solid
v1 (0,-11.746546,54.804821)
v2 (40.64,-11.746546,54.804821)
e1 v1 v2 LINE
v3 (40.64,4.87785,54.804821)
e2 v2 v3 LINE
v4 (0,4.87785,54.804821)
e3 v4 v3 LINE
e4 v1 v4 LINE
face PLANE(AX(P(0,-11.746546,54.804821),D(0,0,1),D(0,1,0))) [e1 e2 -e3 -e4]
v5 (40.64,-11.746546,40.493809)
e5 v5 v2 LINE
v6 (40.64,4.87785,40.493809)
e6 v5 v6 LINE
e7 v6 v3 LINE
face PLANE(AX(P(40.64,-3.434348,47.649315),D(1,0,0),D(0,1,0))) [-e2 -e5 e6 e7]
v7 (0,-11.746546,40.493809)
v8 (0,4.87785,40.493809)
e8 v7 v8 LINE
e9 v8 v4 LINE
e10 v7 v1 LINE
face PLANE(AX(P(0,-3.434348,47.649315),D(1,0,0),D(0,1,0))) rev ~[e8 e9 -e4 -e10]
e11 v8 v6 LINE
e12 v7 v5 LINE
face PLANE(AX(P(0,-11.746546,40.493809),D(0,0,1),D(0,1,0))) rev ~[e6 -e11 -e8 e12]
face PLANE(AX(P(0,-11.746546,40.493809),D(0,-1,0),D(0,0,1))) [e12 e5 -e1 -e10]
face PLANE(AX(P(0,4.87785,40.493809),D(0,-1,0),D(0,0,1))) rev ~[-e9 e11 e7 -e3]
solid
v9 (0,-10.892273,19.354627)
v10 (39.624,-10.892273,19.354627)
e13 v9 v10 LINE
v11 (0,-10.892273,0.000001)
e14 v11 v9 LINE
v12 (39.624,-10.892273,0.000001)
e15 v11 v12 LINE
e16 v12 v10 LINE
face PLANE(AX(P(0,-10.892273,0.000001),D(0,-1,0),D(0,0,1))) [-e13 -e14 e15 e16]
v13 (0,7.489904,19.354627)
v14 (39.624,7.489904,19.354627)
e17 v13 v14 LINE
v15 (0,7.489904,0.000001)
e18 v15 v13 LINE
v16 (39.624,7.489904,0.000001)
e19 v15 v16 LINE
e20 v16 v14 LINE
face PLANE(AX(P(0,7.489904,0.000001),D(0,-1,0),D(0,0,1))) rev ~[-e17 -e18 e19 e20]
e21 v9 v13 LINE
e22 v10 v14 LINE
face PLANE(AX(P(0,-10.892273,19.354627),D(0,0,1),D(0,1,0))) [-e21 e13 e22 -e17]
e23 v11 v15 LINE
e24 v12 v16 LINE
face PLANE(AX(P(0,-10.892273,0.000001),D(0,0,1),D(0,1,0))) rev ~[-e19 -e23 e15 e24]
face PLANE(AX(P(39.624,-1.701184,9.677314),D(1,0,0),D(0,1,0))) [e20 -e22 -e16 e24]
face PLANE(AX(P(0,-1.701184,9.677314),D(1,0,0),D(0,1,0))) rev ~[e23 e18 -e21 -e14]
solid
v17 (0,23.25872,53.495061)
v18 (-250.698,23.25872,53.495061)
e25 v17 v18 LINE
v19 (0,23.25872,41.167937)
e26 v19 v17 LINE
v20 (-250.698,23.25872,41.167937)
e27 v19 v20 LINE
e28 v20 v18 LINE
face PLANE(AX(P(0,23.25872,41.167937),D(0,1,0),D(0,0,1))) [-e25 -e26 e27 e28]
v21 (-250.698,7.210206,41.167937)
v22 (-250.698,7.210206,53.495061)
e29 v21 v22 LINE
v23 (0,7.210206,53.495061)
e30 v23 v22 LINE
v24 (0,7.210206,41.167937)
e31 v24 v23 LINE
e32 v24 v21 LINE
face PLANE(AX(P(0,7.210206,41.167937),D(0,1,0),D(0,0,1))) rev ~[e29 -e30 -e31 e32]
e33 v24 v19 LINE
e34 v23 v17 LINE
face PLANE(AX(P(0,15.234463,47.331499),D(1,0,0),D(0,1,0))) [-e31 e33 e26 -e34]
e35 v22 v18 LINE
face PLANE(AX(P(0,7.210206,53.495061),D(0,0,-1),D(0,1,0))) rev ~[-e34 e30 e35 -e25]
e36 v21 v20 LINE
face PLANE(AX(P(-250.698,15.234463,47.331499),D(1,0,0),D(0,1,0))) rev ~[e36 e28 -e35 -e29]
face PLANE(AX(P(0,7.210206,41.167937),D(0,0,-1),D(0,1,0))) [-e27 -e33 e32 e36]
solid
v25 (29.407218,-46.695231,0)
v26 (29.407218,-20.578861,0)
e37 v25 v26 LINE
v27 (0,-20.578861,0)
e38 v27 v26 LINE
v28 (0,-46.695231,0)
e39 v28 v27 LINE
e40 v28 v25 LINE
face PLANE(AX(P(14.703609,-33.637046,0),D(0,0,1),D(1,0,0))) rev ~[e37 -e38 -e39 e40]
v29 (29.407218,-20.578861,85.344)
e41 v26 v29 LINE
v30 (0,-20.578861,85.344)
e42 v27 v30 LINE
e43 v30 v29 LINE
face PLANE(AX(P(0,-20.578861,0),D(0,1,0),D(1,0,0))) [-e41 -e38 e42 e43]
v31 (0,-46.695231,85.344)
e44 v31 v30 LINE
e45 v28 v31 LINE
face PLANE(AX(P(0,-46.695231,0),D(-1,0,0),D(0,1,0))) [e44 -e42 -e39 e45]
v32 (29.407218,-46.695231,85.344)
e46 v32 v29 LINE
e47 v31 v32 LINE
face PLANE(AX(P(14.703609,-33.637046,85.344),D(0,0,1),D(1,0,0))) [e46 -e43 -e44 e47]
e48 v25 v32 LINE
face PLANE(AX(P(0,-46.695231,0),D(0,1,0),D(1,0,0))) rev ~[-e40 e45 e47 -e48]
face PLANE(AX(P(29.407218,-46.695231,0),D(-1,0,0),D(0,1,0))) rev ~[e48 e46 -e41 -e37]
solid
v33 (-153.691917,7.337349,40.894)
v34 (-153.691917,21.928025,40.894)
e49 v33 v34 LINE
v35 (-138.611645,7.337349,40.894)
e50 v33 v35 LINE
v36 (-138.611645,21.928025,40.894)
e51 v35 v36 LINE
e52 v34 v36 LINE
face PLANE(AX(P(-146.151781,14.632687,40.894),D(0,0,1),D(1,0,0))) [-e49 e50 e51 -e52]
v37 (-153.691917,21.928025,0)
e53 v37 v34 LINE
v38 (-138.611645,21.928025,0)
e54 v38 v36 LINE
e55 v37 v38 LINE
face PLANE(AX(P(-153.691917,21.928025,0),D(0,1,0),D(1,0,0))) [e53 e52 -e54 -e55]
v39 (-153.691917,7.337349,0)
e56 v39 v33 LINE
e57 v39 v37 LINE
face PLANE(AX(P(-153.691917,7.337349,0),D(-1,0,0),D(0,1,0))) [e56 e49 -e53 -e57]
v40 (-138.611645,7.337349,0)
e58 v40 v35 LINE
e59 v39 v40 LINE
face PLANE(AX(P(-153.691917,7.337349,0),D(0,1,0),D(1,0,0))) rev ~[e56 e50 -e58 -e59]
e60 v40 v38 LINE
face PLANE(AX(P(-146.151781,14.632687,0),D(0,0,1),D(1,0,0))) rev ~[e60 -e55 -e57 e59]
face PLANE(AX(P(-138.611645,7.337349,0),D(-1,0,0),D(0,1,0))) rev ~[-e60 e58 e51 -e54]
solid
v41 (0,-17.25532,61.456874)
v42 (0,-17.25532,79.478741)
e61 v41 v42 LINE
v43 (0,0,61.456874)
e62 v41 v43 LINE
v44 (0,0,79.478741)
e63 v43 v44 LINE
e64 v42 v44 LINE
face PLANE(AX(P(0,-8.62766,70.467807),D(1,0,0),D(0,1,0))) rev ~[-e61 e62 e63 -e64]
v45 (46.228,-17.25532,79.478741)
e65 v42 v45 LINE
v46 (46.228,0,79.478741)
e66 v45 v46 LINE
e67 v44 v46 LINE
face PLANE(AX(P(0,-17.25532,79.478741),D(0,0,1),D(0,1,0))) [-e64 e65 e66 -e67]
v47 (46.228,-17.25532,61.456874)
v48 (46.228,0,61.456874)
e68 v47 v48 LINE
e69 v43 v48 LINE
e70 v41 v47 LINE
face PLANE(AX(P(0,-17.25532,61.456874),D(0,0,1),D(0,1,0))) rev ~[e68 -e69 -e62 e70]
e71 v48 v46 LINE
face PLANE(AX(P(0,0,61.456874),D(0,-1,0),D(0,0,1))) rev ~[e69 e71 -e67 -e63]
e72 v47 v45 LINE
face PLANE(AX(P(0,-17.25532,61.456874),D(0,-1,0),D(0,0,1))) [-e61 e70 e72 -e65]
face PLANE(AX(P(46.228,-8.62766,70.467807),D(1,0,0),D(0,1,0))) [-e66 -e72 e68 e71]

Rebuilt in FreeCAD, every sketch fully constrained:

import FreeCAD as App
import Part
import Sketcher

V = App.Vector
Q = App.Units.Quantity


def add_polygon(sketch, points):
    """Adds a closed chain of lines whose ends are joined by coincident constraints."""
    first, n = sketch.GeometryCount, len(points)
    for a, b in zip(points, points[1:] + points[:1]):
        sketch.addGeometry(Part.LineSegment(App.Vector(*a, 0), App.Vector(*b, 0)), False)
    for i in range(n):
        sketch.addConstraint(Sketcher.Constraint("Coincident", first + i, 2, first + (i + 1) % n, 1))

doc = App.newDocument("Part")
params = doc.addObject("Spreadsheet::Sheet", "Params")
for row, (alias, value) in enumerate([
    ("pad1_length", "1.61 in"),
    ("pad2_length", "9.87 in"),
    ("pad3_length", "3.36 in"),
    ("pad4_length", "1.6 in"),
    ("pad5_length", "1.82 in"),
    ("pad6_length", "1.56 in"),
], start=1):
    params.set(f"A{row}", alias)
    params.set(f"B{row}", "=" + value)
    params.setAlias(f"B{row}", alias)

body = doc.addObject("PartDesign::Body", "Body")

sketch1 = doc.addObject("Sketcher::SketchObject", "Sketch")
body.addObject(sketch1)
sketch1.AttachmentSupport = (doc.XY_Plane, [""])
sketch1.MapMode = "FlatFace"
add_polygon(sketch1, [(-153.691917, 21.928025), (-153.691917, 7.337349), (-138.611645, 7.337349), (-138.611645, 21.928025)])
sketch1.addConstraint(Sketcher.Constraint("Vertical", 0))
sketch1.addConstraint(Sketcher.Constraint("Horizontal", 1))
sketch1.addConstraint(Sketcher.Constraint("Vertical", 2))
sketch1.addConstraint(Sketcher.Constraint("Horizontal", 3))
sketch1.addConstraint(Sketcher.Constraint("DistanceX", 1, 1, 1, 2, Q("15.080273 mm")))
sketch1.addConstraint(Sketcher.Constraint("DistanceY", 0, 2, 0, 1, Q("14.590676 mm")))
sketch1.addConstraint(Sketcher.Constraint("DistanceY", -1, 1, 0, 2, Q("7.337349 mm")))
sketch1.addConstraint(Sketcher.Constraint("DistanceX", 0, 2, -1, 1, Q("153.691917 mm")))
pad1 = doc.addObject("PartDesign::Pad", "Pad")
body.addObject(pad1)
pad1.Profile = sketch1
pad1.setExpression("Length", "Params.pad1_length")
body2 = doc.addObject("PartDesign::Body", "Body001")

sketch2 = doc.addObject("Sketcher::SketchObject", "Sketch001")
body2.addObject(sketch2)
sketch2.AttachmentSupport = (doc.getObject("YZ_Plane001"), [""])
sketch2.MapMode = "FlatFace"
add_polygon(sketch2, [(7.210206, 53.495061), (7.210206, 41.167937), (23.25872, 41.167937), (23.25872, 53.495061)])
sketch2.addConstraint(Sketcher.Constraint("Vertical", 0))
sketch2.addConstraint(Sketcher.Constraint("Horizontal", 1))
sketch2.addConstraint(Sketcher.Constraint("Vertical", 2))
sketch2.addConstraint(Sketcher.Constraint("Horizontal", 3))
sketch2.addConstraint(Sketcher.Constraint("DistanceX", 1, 1, 1, 2, Q("16.048514 mm")))
sketch2.addConstraint(Sketcher.Constraint("DistanceY", 0, 2, 0, 1, Q("12.327124 mm")))
sketch2.addConstraint(Sketcher.Constraint("DistanceX", -1, 1, 1, 2, Q("23.25872 mm")))
sketch2.addConstraint(Sketcher.Constraint("DistanceY", -1, 1, 2, 2, Q("53.495061 mm")))
pad2 = doc.addObject("PartDesign::Pad", "Pad001")
body2.addObject(pad2)
pad2.Profile = sketch2
pad2.setExpression("Length", "Params.pad2_length")
pad2.Reversed = True
body3 = doc.addObject("PartDesign::Body", "Body002")

sketch3 = doc.addObject("Sketcher::SketchObject", "Sketch002")
body3.addObject(sketch3)
sketch3.AttachmentSupport = (doc.getObject("XY_Plane002"), [""])
sketch3.MapMode = "FlatFace"
add_polygon(sketch3, [(0, -20.578861), (0, -46.695231), (29.407218, -46.695231), (29.407218, -20.578861)])
sketch3.addConstraint(Sketcher.Constraint("Vertical", 0))
sketch3.addConstraint(Sketcher.Constraint("Horizontal", 1))
sketch3.addConstraint(Sketcher.Constraint("Vertical", 2))
sketch3.addConstraint(Sketcher.Constraint("Horizontal", 3))
sketch3.addConstraint(Sketcher.Constraint("PointOnObject", 0, 2, -2))
sketch3.addConstraint(Sketcher.Constraint("DistanceX", 1, 1, 1, 2, Q("29.407218 mm")))
sketch3.addConstraint(Sketcher.Constraint("DistanceY", 0, 2, 0, 1, Q("26.116371 mm")))
sketch3.addConstraint(Sketcher.Constraint("DistanceY", 0, 2, -1, 1, Q("46.695231 mm")))
pad3 = doc.addObject("PartDesign::Pad", "Pad002")
body3.addObject(pad3)
pad3.Profile = sketch3
pad3.setExpression("Length", "Params.pad3_length")
body4 = doc.addObject("PartDesign::Body", "Body003")

sketch4 = doc.addObject("Sketcher::SketchObject", "Sketch003")
body4.addObject(sketch4)
sketch4.AttachmentSupport = (doc.getObject("YZ_Plane003"), [""])
sketch4.MapMode = "FlatFace"
add_polygon(sketch4, [(-11.746546, 54.804821), (-11.746546, 40.493809), (4.87785, 40.493809), (4.87785, 54.804821)])
sketch4.addConstraint(Sketcher.Constraint("Vertical", 0))
sketch4.addConstraint(Sketcher.Constraint("Horizontal", 1))
sketch4.addConstraint(Sketcher.Constraint("Vertical", 2))
sketch4.addConstraint(Sketcher.Constraint("Horizontal", 3))
sketch4.addConstraint(Sketcher.Constraint("DistanceY", 0, 2, 0, 1, Q("14.311012 mm")))
sketch4.addConstraint(Sketcher.Constraint("DistanceX", 1, 1, 1, 2, Q("16.624396 mm")))
sketch4.addConstraint(Sketcher.Constraint("DistanceY", -1, 1, 0, 2, Q("40.493809 mm")))
sketch4.addConstraint(Sketcher.Constraint("DistanceX", -1, 1, 1, 2, Q("4.87785 mm")))
pad4 = doc.addObject("PartDesign::Pad", "Pad003")
body4.addObject(pad4)
pad4.Profile = sketch4
pad4.setExpression("Length", "Params.pad4_length")
body5 = doc.addObject("PartDesign::Body", "Body004")

sketch5 = doc.addObject("Sketcher::SketchObject", "Sketch004")
body5.addObject(sketch5)
sketch5.AttachmentSupport = (doc.getObject("YZ_Plane004"), [""])
sketch5.MapMode = "FlatFace"
add_polygon(sketch5, [(-17.25532, 79.478741), (-17.25532, 61.456874), (0, 61.456874), (0, 79.478741)])
sketch5.addConstraint(Sketcher.Constraint("Vertical", 0))
sketch5.addConstraint(Sketcher.Constraint("Horizontal", 1))
sketch5.addConstraint(Sketcher.Constraint("Vertical", 2))
sketch5.addConstraint(Sketcher.Constraint("Horizontal", 3))
sketch5.addConstraint(Sketcher.Constraint("PointOnObject", 1, 2, -2))
sketch5.addConstraint(Sketcher.Constraint("DistanceX", 1, 1, 1, 2, Q("17.255321 mm")))
sketch5.addConstraint(Sketcher.Constraint("DistanceY", 0, 2, 0, 1, Q("18.021867 mm")))
sketch5.addConstraint(Sketcher.Constraint("DistanceY", -1, 1, 2, 2, Q("79.478741 mm")))
pad5 = doc.addObject("PartDesign::Pad", "Pad004")
body5.addObject(pad5)
pad5.Profile = sketch5
pad5.setExpression("Length", "Params.pad5_length")
body6 = doc.addObject("PartDesign::Body", "Body005")

sketch6 = doc.addObject("Sketcher::SketchObject", "Sketch005")
body6.addObject(sketch6)
sketch6.AttachmentSupport = (doc.getObject("YZ_Plane005"), [""])
sketch6.MapMode = "FlatFace"
add_polygon(sketch6, [(-10.892273, 19.354627), (-10.892273, 0), (7.489904, 0), (7.489904, 19.354627)])
sketch6.addConstraint(Sketcher.Constraint("Vertical", 0))
sketch6.addConstraint(Sketcher.Constraint("Horizontal", 1))
sketch6.addConstraint(Sketcher.Constraint("Vertical", 2))
sketch6.addConstraint(Sketcher.Constraint("Horizontal", 3))
sketch6.addConstraint(Sketcher.Constraint("PointOnObject", 0, 2, -1))
sketch6.addConstraint(Sketcher.Constraint("DistanceX", 1, 1, 1, 2, Q("18.382177 mm")))
sketch6.addConstraint(Sketcher.Constraint("DistanceY", 0, 2, 0, 1, Q("19.354627 mm")))
sketch6.addConstraint(Sketcher.Constraint("DistanceX", 0, 2, -1, 1, Q("10.892273 mm")))
pad6 = doc.addObject("PartDesign::Pad", "Pad005")
body6.addObject(pad6)
pad6.Profile = sketch6
pad6.setExpression("Length", "Params.pad6_length")

doc.recompute()
